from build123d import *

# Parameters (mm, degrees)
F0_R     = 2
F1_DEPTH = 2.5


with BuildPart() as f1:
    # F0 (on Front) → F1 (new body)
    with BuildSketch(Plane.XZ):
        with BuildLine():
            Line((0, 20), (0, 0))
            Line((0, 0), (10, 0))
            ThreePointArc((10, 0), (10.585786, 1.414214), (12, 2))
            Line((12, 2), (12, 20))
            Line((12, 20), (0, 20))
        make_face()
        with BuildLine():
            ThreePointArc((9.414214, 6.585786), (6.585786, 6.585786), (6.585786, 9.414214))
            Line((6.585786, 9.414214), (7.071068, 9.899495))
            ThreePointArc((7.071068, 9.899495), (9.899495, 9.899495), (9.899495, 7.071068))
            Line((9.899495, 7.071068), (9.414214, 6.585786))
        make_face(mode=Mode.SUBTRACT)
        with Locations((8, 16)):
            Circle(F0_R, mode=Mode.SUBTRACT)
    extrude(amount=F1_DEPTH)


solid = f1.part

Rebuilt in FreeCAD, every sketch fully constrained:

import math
import FreeCAD as App
import Part
import Sketcher
from FreeCAD import Vector
Q = App.Units.Quantity

doc = App.newDocument("Part")
body = doc.addObject("PartDesign::Body", "Body")

sketch1 = doc.addObject("Sketcher::SketchObject", "Sketch")
body.addObject(sketch1)
sketch1.AttachmentSupport = (doc.XZ_Plane, [""])
sketch1.MapMode = "FlatFace"
sketch1.addGeometry([
    Part.LineSegment(Vector(0, 20, 0), Vector(0, 0, 0)),
    Part.LineSegment(Vector(0, 0, 0), Vector(10, 0, 0)),
    Part.ArcOfCircle(Part.Circle(Vector(11.999999, 0.000001, 0), Vector(0, 0, 1), 1.999999), math.radians(89.999957), math.radians(180.000043)),
    Part.LineSegment(Vector(12, 2, 0), Vector(12, 20, 0)),
    Part.LineSegment(Vector(12, 20, 0), Vector(0, 20, 0)),
    Part.LineSegment(Vector(9.899495, 7.071068, 0), Vector(9.414214, 6.585786, 0)),
    Part.ArcOfCircle(Part.Circle(Vector(8, 8, 0), Vector(0, 0, 1), 2.000001), math.radians(135), math.radians(315)),
    Part.LineSegment(Vector(6.585786, 9.414214, 0), Vector(7.071068, 9.899495, 0)),
    Part.ArcOfCircle(Part.Circle(Vector(8.485281, 8.485281, 0), Vector(0, 0, 1), 2), math.radians(-45), math.radians(135)),
    Part.Circle(Vector(8, 16, 0), Vector(0, 0, 1), 2),
], False)
sketch1.addConstraint([
    Sketcher.Constraint("Coincident", 0, 2, 1, 1),
    Sketcher.Constraint("Coincident", 1, 2, 2, 2),
    Sketcher.Constraint("Coincident", 2, 1, 3, 1),
    Sketcher.Constraint("Coincident", 3, 2, 4, 1),
    Sketcher.Constraint("Coincident", 4, 2, 0, 1),
    Sketcher.Constraint("Tangent", 5, 2, 6, 2),
    Sketcher.Constraint("Tangent", 6, 1, 7, 1),
    Sketcher.Constraint("Tangent", 7, 2, 8, 2),
    Sketcher.Constraint("Tangent", 8, 1, 5, 1),
    Sketcher.Constraint("Vertical", 0),
    Sketcher.Constraint("Horizontal", 1),
    Sketcher.Constraint("Vertical", 3),
    Sketcher.Constraint("Horizontal", 4),
    Sketcher.Constraint("Coincident", 0, 2, -1, 1),
    Sketcher.Constraint("Equal", 6, 8),
    Sketcher.Constraint("Equal", 8, 9),
    Sketcher.Constraint("PointOnObject", 2, 3, -1),
    Sketcher.Constraint("Vertical", 6, 3, 9, 3),
    Sketcher.Constraint("Diameter", 9, Q("4 mm")),
    Sketcher.Constraint("Radius", 2, Q("1.999999 mm")),
    Sketcher.Constraint("DistanceX", 1, 1, 1, 2, Q("10 mm")),
    Sketcher.Constraint("DistanceX", 4, 2, 4, 1, Q("12 mm")),
    Sketcher.Constraint("DistanceY", 0, 2, 0, 1, Q("20 mm")),
    Sketcher.Constraint("DistanceX", -1, 1, 6, 3, Q("8 mm")),
    Sketcher.Constraint("DistanceY", -1, 1, 6, 3, Q("8 mm")),
    Sketcher.Constraint("DistanceY", -1, 1, 9, 3, Q("16 mm")),
    Sketcher.Constraint("Distance", 5, Q("0.686292 mm")),
    Sketcher.Constraint("DistanceX", -1, 1, 8, 3, Q("8.485281 mm")),
])
pad1 = doc.addObject("PartDesign::Pad", "Pad")
body.addObject(pad1)
pad1.Profile = sketch1
pad1.Length = 2.5

doc.recompute()
